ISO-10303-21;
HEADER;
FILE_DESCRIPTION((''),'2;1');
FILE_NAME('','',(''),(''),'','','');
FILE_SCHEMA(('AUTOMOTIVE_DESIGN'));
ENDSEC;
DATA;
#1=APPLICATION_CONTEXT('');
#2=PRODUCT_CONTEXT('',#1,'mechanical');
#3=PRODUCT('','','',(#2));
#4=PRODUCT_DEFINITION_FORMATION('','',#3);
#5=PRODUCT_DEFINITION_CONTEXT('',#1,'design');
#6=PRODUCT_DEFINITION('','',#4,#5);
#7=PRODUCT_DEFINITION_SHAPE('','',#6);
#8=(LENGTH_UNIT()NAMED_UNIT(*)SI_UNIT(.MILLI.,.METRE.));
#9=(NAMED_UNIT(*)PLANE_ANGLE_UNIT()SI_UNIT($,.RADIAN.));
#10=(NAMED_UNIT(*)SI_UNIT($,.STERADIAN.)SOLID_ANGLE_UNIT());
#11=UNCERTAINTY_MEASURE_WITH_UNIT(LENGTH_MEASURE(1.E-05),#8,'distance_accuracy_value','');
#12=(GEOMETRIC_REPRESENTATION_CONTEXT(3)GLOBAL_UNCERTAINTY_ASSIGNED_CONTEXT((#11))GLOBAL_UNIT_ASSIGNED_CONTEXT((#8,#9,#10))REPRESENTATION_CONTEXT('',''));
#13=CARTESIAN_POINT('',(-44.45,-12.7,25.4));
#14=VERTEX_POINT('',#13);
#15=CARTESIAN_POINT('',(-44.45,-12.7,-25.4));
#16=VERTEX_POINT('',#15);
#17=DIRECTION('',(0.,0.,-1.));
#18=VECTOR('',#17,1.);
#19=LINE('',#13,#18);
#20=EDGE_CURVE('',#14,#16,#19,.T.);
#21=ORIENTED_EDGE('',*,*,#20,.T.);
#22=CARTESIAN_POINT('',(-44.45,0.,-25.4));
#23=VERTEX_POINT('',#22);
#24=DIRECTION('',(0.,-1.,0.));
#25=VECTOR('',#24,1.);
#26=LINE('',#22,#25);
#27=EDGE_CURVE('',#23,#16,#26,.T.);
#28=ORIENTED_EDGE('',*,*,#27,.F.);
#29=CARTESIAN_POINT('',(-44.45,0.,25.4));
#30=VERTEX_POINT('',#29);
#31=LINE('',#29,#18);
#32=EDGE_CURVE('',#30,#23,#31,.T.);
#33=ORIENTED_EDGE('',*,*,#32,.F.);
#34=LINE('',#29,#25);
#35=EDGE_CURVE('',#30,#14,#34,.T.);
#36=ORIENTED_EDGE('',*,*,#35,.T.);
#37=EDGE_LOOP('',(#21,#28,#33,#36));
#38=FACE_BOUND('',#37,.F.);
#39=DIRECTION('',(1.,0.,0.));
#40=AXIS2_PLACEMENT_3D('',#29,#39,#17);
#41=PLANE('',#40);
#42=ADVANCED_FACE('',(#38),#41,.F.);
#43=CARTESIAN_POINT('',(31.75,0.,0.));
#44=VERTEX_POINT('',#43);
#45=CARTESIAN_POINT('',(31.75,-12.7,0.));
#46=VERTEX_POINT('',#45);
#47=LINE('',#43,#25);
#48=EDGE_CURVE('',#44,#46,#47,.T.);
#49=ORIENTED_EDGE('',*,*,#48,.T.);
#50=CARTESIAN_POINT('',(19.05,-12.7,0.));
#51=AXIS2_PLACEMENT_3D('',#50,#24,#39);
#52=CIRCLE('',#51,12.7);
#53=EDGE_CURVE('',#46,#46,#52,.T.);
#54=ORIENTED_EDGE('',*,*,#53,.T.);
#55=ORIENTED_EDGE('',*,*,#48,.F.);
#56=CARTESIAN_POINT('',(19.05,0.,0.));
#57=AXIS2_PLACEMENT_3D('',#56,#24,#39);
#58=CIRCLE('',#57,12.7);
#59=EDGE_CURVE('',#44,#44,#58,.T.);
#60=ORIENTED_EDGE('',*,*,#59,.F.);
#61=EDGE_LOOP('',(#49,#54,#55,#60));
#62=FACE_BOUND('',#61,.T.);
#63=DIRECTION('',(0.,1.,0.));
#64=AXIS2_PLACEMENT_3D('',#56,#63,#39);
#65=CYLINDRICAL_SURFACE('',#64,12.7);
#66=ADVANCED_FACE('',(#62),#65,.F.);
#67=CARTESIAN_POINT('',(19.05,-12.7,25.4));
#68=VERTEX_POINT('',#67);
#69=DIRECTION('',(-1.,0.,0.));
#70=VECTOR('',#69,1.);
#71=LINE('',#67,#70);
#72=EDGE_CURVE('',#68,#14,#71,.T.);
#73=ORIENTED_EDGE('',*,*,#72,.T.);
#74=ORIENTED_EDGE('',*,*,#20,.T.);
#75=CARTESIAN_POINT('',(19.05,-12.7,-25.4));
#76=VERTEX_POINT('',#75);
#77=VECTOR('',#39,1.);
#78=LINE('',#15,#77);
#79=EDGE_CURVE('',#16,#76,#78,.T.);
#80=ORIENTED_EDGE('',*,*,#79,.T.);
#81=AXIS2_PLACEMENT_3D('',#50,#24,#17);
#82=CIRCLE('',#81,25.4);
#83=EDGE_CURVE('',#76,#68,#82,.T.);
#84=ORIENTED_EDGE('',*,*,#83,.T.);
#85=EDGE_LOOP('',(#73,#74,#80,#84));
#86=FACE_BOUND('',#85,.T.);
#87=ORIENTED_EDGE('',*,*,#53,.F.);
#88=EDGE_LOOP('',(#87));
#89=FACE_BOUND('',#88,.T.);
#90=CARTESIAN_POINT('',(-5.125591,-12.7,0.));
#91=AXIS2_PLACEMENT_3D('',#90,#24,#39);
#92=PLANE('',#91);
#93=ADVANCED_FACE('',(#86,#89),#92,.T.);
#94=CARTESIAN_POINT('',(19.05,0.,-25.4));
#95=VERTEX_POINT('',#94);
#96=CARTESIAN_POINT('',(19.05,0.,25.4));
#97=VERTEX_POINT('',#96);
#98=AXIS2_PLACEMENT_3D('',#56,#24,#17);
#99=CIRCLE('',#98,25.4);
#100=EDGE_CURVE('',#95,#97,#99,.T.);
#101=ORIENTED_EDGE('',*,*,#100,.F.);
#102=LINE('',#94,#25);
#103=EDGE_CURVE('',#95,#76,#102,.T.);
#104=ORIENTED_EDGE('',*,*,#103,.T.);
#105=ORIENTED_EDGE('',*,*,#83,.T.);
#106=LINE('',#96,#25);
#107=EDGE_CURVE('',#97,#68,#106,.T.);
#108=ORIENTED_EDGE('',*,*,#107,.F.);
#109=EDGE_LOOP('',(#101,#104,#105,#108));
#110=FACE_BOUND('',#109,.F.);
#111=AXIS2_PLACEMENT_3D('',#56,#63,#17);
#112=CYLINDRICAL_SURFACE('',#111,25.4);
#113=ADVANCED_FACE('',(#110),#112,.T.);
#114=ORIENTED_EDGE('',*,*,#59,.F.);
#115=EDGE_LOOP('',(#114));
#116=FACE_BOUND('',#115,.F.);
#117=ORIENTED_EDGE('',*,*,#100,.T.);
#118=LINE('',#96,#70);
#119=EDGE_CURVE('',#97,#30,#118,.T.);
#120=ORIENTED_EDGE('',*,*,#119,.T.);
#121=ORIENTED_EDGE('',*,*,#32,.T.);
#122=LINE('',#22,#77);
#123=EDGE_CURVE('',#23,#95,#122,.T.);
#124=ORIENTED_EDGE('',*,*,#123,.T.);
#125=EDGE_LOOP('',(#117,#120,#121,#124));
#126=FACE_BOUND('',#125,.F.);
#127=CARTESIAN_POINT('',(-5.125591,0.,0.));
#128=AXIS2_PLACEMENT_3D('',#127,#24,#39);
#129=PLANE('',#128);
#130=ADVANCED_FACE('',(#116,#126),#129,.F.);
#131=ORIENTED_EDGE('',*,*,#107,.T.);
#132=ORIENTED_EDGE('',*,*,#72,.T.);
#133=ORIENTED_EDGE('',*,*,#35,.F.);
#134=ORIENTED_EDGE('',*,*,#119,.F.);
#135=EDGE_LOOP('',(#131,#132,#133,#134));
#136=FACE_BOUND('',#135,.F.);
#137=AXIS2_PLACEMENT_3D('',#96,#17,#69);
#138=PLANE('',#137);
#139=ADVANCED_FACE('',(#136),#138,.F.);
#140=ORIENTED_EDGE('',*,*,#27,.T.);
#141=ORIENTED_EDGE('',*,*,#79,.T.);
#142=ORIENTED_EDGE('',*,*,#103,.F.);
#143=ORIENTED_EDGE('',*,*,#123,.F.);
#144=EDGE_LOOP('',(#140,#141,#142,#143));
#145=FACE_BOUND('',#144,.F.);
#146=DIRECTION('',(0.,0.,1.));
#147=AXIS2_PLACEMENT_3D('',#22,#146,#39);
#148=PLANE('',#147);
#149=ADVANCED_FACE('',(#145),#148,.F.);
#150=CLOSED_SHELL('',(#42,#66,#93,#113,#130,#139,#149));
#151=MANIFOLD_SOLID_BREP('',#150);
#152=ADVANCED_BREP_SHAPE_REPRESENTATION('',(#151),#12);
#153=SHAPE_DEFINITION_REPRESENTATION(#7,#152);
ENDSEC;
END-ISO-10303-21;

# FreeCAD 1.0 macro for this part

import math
import FreeCAD as App
import Part
import Sketcher
Q = App.Units.Quantity

doc = App.newDocument("Part")
body = doc.addObject("PartDesign::Body", "Body")

# Sketch on XZ plane
sketch1 = doc.addObject("Sketcher::SketchObject", "Sketch")
body.addObject(sketch1)
sketch1.AttachmentSupport = (doc.XZ_Plane, [""])
sketch1.MapMode = "FlatFace"
sketch1.addGeometry([
    Part.ArcOfCircle(Part.Circle(App.Vector(19, 0, 0), App.Vector(0, 0, 1), 25), math.radians(-90), math.radians(90)),  # 0
    Part.LineSegment(App.Vector(19, 25, 0), App.Vector(-44, 25, 0)),  # 1
    Part.LineSegment(App.Vector(-44, 25, 0), App.Vector(-44, -25, 0)),  # 2
    Part.LineSegment(App.Vector(-44, -25, 0), App.Vector(19, -25, 0)),  # 3
    Part.Circle(App.Vector(19, 0, 0), App.Vector(0, 0, 1), 13),  # 4
], False)
sketch1.addConstraint([
    Sketcher.Constraint("Tangent", 0, 2, 1, 1),
    Sketcher.Constraint("Coincident", 1, 2, 2, 1),
    Sketcher.Constraint("Coincident", 2, 2, 3, 1),
    Sketcher.Constraint("Tangent", 3, 2, 0, 1),
    Sketcher.Constraint("Horizontal", 1),
    Sketcher.Constraint("Vertical", 2),
    Sketcher.Constraint("Horizontal", 3),
    Sketcher.Constraint("Coincident", 4, 3, 0, 3),
    Sketcher.Constraint("PointOnObject", 0, 3, -1),
    Sketcher.Constraint("Diameter", 4, Q("1 in")),
    Sketcher.Constraint("Radius", 0, Q("1 in")),
    Sketcher.Constraint("DistanceX", 1, 2, 1, 1, Q("2.5 in")),
    Sketcher.Constraint("DistanceX", -1, 1, 0, 3, Q("0.75 in")),
])
pad1 = doc.addObject("PartDesign::Pad", "Pad")
body.addObject(pad1)
pad1.Profile = sketch1
pad1.Length = Q("0.5 in")

doc.recompute()
